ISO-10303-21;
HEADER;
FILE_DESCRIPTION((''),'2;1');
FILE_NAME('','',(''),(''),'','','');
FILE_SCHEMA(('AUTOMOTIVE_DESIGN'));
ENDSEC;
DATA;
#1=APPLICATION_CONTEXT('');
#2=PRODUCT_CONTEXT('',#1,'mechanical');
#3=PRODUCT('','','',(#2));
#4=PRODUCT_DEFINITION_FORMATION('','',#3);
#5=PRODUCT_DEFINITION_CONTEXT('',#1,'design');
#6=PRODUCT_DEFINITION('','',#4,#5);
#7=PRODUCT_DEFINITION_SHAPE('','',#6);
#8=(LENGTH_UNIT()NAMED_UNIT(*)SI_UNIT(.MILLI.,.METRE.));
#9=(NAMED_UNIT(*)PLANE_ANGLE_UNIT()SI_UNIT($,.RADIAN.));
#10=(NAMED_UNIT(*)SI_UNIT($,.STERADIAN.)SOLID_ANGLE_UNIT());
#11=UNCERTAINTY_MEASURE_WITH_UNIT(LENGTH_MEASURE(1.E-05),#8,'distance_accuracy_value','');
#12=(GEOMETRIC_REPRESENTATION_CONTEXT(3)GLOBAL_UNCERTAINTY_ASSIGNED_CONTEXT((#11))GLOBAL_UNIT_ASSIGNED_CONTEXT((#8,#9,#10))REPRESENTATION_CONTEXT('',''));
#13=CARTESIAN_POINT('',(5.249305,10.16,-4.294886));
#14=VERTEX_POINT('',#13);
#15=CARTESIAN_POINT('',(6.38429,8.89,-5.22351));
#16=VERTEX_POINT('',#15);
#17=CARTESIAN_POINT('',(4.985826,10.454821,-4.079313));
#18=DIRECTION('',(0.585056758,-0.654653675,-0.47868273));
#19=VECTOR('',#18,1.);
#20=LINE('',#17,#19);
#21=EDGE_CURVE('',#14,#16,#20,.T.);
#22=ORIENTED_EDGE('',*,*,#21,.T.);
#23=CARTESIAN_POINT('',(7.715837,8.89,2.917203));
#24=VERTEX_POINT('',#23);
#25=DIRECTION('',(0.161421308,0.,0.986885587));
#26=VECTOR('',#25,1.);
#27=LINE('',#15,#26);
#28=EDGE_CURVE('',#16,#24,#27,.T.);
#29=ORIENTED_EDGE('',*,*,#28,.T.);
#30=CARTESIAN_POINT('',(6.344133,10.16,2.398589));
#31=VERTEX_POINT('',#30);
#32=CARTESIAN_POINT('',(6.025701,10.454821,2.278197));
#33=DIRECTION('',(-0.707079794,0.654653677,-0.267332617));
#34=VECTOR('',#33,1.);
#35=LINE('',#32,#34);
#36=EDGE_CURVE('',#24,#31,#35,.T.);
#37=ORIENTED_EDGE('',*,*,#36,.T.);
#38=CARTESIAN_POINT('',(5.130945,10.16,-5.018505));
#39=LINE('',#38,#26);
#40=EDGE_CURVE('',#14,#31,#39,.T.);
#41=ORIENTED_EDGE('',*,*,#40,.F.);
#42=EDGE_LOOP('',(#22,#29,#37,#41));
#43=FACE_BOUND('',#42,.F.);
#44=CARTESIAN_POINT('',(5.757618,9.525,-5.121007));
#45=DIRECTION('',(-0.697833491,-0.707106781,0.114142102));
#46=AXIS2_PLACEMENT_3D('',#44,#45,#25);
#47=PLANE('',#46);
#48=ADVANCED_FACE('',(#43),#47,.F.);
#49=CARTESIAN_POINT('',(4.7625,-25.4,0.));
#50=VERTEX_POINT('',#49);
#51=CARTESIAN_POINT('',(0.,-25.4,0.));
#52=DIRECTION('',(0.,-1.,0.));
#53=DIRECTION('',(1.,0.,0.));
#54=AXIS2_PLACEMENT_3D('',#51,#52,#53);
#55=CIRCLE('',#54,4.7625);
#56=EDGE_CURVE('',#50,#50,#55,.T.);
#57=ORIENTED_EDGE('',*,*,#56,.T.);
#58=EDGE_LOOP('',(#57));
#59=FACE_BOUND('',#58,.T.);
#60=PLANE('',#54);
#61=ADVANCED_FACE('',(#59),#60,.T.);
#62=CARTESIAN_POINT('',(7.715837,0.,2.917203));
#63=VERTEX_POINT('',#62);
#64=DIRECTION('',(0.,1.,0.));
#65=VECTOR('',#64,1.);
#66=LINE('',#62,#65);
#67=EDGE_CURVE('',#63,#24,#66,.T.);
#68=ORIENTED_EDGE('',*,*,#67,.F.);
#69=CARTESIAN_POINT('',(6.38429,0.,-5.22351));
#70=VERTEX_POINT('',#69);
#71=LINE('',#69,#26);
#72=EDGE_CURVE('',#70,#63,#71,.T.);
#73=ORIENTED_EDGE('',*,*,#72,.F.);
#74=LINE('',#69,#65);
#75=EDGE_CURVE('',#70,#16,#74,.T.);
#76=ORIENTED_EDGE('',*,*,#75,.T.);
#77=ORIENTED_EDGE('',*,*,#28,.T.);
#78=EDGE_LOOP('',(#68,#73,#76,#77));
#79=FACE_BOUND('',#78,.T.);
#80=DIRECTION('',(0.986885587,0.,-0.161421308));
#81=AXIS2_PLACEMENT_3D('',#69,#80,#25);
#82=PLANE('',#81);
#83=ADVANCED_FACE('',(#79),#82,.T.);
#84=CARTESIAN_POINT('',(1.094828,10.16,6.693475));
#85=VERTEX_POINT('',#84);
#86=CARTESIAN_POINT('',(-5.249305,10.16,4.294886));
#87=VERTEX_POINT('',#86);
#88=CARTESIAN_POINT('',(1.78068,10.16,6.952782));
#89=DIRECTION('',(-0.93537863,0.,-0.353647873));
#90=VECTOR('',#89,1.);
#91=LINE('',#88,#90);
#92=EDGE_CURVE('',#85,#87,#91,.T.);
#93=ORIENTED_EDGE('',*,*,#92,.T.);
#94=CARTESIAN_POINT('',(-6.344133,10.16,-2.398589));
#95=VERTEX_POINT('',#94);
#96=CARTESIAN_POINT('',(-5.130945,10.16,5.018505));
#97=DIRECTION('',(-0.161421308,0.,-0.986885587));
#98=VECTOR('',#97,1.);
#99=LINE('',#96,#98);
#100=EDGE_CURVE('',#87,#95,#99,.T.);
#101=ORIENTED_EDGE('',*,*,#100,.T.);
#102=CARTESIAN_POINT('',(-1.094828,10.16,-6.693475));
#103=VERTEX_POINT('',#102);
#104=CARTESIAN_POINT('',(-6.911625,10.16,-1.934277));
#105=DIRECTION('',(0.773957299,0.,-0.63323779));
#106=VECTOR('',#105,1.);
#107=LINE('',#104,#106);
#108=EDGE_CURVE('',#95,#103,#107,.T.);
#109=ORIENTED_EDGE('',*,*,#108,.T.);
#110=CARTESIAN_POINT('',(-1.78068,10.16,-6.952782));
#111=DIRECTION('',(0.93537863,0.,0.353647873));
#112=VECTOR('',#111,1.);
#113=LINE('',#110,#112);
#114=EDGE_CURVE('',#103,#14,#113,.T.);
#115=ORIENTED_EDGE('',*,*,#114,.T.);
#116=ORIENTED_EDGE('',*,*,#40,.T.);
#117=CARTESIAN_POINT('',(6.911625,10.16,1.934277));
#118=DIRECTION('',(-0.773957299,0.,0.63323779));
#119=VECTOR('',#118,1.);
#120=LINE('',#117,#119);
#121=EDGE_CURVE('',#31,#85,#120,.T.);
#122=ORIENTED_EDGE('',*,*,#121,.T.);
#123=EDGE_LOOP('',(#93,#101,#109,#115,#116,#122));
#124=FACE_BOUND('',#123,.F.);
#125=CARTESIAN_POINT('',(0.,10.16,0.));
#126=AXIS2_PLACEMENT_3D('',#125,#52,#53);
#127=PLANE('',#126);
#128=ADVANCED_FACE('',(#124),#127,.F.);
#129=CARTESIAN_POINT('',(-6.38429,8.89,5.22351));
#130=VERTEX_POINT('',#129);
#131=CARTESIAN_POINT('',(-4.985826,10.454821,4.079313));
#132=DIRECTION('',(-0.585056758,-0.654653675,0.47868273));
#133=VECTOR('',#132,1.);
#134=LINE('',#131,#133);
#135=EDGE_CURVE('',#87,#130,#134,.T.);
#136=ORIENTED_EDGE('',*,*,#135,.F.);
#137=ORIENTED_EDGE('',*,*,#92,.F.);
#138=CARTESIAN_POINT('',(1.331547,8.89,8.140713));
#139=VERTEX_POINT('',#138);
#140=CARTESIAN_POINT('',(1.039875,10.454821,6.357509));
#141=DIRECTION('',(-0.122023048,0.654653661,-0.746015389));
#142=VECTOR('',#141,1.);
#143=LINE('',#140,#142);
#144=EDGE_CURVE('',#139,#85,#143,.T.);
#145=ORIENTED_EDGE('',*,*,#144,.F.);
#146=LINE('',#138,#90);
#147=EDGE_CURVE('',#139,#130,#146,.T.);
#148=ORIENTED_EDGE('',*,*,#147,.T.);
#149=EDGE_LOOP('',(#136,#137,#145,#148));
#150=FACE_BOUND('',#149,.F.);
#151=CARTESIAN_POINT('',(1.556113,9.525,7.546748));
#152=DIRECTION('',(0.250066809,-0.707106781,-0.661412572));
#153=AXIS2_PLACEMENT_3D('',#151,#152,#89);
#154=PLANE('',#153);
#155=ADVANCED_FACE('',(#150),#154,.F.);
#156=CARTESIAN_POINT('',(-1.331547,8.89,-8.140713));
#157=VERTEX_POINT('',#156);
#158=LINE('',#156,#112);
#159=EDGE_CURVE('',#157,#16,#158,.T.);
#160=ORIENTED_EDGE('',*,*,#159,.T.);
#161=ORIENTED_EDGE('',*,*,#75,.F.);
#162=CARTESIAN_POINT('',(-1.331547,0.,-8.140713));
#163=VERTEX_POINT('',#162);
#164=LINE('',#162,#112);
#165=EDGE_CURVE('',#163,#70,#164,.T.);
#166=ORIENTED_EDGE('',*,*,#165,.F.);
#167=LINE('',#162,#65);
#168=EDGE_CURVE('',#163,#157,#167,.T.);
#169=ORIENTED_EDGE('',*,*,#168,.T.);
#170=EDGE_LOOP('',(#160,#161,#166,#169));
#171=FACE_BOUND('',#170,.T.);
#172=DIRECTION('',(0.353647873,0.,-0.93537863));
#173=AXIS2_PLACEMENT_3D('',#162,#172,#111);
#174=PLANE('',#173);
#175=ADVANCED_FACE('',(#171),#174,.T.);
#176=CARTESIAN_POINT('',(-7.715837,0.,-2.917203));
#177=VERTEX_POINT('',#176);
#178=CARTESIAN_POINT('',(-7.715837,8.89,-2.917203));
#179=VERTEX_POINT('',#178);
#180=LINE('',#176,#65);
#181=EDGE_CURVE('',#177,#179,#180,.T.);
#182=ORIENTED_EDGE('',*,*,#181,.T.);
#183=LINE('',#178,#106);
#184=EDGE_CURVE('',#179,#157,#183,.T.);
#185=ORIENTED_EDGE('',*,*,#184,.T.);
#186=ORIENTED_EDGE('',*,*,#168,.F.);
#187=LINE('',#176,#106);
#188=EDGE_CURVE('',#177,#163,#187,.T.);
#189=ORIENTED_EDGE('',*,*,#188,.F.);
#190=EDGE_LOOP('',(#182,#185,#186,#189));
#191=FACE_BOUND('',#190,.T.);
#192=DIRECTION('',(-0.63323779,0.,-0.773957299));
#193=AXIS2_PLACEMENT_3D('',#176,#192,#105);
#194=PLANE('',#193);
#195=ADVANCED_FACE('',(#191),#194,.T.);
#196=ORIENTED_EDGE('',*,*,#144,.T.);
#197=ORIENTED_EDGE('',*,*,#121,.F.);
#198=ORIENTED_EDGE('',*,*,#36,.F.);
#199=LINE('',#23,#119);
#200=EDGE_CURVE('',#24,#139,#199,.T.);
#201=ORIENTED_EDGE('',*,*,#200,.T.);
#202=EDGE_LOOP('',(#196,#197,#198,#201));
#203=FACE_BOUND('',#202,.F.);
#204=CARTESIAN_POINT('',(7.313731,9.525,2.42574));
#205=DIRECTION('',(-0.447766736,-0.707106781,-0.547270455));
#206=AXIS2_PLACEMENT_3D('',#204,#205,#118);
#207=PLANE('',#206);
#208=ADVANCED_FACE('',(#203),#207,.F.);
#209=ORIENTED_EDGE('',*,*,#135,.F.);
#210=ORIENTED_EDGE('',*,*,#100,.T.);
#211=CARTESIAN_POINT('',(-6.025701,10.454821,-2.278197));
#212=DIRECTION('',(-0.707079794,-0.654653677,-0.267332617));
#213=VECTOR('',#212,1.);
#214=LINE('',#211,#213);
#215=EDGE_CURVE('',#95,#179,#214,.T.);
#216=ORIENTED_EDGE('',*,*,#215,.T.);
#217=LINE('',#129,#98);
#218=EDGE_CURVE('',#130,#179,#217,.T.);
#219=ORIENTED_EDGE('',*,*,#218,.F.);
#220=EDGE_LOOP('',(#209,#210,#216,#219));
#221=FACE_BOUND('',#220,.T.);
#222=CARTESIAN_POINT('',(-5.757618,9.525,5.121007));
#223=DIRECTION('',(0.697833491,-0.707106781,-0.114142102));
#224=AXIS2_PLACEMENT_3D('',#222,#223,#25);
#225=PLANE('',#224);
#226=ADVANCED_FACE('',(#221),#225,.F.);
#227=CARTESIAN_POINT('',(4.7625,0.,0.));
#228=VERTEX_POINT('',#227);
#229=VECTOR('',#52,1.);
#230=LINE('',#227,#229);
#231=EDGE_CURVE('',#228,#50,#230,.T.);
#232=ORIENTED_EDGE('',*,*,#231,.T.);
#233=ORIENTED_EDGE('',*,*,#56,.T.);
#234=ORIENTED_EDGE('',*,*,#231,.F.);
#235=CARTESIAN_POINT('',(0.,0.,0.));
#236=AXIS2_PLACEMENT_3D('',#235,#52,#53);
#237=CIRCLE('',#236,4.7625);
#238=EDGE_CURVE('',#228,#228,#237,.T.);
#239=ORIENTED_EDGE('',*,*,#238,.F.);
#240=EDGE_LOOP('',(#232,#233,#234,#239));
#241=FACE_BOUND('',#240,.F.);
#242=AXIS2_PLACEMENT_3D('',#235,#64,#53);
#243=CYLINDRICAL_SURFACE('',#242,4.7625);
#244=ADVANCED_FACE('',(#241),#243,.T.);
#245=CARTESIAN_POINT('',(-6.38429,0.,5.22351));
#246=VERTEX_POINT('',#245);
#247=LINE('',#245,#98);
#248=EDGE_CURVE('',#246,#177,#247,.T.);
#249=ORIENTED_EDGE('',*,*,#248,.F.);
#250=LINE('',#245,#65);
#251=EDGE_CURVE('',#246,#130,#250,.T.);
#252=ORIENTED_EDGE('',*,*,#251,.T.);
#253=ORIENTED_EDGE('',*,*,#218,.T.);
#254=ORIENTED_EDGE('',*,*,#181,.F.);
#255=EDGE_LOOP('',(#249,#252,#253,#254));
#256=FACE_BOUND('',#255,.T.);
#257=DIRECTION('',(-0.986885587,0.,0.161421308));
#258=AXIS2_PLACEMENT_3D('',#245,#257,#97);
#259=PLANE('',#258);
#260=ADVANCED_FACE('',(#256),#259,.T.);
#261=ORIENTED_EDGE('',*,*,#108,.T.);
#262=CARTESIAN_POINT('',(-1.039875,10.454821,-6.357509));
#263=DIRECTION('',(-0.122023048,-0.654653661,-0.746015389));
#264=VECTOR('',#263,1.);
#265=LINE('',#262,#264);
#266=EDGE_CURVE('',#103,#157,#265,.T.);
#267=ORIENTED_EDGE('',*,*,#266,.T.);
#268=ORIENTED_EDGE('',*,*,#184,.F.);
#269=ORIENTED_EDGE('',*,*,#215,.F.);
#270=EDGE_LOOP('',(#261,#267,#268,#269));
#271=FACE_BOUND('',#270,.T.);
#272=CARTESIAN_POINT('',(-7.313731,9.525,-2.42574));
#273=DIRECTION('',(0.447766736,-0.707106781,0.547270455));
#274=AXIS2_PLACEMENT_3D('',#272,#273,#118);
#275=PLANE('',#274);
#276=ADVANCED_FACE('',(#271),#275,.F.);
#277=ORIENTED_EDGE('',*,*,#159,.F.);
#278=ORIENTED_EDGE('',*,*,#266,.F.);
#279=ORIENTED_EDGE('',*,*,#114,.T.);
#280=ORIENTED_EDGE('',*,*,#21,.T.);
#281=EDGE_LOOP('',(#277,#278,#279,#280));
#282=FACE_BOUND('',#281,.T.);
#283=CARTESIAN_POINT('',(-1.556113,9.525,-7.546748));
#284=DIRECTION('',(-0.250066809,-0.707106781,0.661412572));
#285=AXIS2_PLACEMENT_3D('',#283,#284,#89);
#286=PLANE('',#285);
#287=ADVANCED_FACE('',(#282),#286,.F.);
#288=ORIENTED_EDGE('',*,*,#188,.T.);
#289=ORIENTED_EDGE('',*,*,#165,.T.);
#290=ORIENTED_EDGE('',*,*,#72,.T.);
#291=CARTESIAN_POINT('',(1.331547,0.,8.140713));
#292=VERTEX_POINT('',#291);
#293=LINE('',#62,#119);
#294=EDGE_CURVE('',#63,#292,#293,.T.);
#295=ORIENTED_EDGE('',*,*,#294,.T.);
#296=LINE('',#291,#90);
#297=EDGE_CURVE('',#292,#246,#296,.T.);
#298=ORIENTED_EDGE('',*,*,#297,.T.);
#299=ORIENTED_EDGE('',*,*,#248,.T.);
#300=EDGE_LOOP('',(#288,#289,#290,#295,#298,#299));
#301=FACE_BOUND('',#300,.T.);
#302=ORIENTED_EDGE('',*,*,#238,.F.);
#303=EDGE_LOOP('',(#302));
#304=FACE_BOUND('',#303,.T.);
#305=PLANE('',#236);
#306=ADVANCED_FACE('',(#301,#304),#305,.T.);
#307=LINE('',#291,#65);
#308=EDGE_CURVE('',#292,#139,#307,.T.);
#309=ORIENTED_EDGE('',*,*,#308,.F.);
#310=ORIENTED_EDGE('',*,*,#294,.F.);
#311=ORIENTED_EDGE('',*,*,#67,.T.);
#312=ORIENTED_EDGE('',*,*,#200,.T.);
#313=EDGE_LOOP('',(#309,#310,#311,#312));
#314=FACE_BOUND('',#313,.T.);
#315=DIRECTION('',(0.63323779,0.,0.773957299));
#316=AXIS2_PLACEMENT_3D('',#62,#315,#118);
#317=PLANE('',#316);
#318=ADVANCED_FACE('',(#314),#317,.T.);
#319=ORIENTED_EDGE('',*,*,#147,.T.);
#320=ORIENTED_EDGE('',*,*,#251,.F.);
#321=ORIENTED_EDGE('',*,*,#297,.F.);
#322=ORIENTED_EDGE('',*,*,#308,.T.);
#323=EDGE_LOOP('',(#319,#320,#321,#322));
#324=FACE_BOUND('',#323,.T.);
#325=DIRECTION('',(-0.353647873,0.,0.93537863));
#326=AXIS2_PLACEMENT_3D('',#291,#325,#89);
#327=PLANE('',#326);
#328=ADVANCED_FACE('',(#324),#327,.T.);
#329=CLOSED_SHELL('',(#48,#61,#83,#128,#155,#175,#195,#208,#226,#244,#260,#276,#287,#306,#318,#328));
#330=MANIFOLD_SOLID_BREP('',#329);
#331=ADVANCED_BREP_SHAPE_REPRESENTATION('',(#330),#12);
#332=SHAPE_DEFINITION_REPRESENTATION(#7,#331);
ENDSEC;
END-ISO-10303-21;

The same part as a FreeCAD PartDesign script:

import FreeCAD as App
import Part
import Sketcher

V = App.Vector
Q = App.Units.Quantity


def edges_at(feature, points):
    """Names of the edges that pass closest to the given points."""
    edges = feature.Shape.Edges
    near = lambda p: min(range(len(edges)), key=lambda i: edges[i].distToShape(Part.Vertex(*p))[0])
    return sorted({f"Edge{near(p) + 1}" for p in points})


def add_polygon(sketch, points):
    """Adds a closed chain of lines whose ends are joined by coincident constraints."""
    first, n = sketch.GeometryCount, len(points)
    for a, b in zip(points, points[1:] + points[:1]):
        sketch.addGeometry(Part.LineSegment(App.Vector(*a, 0), App.Vector(*b, 0)), False)
    for i in range(n):
        sketch.addConstraint(Sketcher.Constraint("Coincident", first + i, 2, first + (i + 1) % n, 1))

doc = App.newDocument("Part")
body = doc.addObject("PartDesign::Body", "Body")

sketch1 = body.newObject("Sketcher::SketchObject", "Sketch")
sketch1.AttachmentSupport = (doc.getObject("XZ_Plane"), [""])
sketch1.MapMode = "FlatFace"
add_polygon(sketch1, [(8, 3), (1, 8), (-6, 5), (-8, -3), (-1, -8), (6, -5)])
sketch1.addConstraint(Sketcher.Constraint("Symmetric", 0, 2, 3, 2, -1, 1))
sketch1.addConstraint(Sketcher.Constraint("Symmetric", 1, 2, 4, 2, -1, 1))
sketch1.addConstraint(Sketcher.Constraint("Symmetric", 2, 2, 5, 2, -1, 1))
sketch1.addConstraint(Sketcher.Constraint("Equal", 0, 1))
sketch1.addConstraint(Sketcher.Constraint("Equal", 1, 2))
sketch1.addConstraint(Sketcher.Constraint("DistanceX", 1, 2, 4, 2, Q("0.5027 in")))
sketch1.addConstraint(Sketcher.Constraint("DistanceY", 4, 2, 1, 2, Q("0.4113 in")))
sketch1.addConstraint(Sketcher.Constraint("Distance", 0, Q("8.248892 mm")))
sketch1.addConstraint(Sketcher.Constraint("DistanceX", 2, 2, 3, 2, Q("6.38429 mm")))
pad1 = body.newObject("PartDesign::Pad", "Pad")
pad1.Profile = sketch1
pad1.Length = Q("0.4 in")
pad1.Reversed = True

sketch2 = body.newObject("Sketcher::SketchObject", "Sketch001")
sketch2.AttachmentSupport = (doc.getObject("XZ_Plane"), [""])
sketch2.MapMode = "FlatFace"
sketch2.addGeometry(Part.Circle(V(0, 0, 0), V(0, 0, 1), 4.8), False)
sketch2.addConstraint(Sketcher.Constraint("Coincident", 0, 3, -1, 1))
sketch2.addConstraint(Sketcher.Constraint("Diameter", 0, Q("0.375 in")))
pad2 = body.newObject("PartDesign::Pad", "Pad001")
pad2.Profile = sketch2
pad2.Length = Q("1 in")
doc.recompute()

chamfer = body.newObject("PartDesign::Chamfer", "Chamfer")
chamfer.Base = (pad2, edges_at(pad2, [
    (-7.05, 10.16, 1.153),
    (-2.526, 10.16, 6.682),
    (4.524, 10.16, 5.529),
    (-4.524, 10.16, -5.529),
    (2.526, 10.16, -6.682),
    (7.05, 10.16, -1.153),
]))
chamfer.Size = Q("0.05 in")

doc.recompute()
